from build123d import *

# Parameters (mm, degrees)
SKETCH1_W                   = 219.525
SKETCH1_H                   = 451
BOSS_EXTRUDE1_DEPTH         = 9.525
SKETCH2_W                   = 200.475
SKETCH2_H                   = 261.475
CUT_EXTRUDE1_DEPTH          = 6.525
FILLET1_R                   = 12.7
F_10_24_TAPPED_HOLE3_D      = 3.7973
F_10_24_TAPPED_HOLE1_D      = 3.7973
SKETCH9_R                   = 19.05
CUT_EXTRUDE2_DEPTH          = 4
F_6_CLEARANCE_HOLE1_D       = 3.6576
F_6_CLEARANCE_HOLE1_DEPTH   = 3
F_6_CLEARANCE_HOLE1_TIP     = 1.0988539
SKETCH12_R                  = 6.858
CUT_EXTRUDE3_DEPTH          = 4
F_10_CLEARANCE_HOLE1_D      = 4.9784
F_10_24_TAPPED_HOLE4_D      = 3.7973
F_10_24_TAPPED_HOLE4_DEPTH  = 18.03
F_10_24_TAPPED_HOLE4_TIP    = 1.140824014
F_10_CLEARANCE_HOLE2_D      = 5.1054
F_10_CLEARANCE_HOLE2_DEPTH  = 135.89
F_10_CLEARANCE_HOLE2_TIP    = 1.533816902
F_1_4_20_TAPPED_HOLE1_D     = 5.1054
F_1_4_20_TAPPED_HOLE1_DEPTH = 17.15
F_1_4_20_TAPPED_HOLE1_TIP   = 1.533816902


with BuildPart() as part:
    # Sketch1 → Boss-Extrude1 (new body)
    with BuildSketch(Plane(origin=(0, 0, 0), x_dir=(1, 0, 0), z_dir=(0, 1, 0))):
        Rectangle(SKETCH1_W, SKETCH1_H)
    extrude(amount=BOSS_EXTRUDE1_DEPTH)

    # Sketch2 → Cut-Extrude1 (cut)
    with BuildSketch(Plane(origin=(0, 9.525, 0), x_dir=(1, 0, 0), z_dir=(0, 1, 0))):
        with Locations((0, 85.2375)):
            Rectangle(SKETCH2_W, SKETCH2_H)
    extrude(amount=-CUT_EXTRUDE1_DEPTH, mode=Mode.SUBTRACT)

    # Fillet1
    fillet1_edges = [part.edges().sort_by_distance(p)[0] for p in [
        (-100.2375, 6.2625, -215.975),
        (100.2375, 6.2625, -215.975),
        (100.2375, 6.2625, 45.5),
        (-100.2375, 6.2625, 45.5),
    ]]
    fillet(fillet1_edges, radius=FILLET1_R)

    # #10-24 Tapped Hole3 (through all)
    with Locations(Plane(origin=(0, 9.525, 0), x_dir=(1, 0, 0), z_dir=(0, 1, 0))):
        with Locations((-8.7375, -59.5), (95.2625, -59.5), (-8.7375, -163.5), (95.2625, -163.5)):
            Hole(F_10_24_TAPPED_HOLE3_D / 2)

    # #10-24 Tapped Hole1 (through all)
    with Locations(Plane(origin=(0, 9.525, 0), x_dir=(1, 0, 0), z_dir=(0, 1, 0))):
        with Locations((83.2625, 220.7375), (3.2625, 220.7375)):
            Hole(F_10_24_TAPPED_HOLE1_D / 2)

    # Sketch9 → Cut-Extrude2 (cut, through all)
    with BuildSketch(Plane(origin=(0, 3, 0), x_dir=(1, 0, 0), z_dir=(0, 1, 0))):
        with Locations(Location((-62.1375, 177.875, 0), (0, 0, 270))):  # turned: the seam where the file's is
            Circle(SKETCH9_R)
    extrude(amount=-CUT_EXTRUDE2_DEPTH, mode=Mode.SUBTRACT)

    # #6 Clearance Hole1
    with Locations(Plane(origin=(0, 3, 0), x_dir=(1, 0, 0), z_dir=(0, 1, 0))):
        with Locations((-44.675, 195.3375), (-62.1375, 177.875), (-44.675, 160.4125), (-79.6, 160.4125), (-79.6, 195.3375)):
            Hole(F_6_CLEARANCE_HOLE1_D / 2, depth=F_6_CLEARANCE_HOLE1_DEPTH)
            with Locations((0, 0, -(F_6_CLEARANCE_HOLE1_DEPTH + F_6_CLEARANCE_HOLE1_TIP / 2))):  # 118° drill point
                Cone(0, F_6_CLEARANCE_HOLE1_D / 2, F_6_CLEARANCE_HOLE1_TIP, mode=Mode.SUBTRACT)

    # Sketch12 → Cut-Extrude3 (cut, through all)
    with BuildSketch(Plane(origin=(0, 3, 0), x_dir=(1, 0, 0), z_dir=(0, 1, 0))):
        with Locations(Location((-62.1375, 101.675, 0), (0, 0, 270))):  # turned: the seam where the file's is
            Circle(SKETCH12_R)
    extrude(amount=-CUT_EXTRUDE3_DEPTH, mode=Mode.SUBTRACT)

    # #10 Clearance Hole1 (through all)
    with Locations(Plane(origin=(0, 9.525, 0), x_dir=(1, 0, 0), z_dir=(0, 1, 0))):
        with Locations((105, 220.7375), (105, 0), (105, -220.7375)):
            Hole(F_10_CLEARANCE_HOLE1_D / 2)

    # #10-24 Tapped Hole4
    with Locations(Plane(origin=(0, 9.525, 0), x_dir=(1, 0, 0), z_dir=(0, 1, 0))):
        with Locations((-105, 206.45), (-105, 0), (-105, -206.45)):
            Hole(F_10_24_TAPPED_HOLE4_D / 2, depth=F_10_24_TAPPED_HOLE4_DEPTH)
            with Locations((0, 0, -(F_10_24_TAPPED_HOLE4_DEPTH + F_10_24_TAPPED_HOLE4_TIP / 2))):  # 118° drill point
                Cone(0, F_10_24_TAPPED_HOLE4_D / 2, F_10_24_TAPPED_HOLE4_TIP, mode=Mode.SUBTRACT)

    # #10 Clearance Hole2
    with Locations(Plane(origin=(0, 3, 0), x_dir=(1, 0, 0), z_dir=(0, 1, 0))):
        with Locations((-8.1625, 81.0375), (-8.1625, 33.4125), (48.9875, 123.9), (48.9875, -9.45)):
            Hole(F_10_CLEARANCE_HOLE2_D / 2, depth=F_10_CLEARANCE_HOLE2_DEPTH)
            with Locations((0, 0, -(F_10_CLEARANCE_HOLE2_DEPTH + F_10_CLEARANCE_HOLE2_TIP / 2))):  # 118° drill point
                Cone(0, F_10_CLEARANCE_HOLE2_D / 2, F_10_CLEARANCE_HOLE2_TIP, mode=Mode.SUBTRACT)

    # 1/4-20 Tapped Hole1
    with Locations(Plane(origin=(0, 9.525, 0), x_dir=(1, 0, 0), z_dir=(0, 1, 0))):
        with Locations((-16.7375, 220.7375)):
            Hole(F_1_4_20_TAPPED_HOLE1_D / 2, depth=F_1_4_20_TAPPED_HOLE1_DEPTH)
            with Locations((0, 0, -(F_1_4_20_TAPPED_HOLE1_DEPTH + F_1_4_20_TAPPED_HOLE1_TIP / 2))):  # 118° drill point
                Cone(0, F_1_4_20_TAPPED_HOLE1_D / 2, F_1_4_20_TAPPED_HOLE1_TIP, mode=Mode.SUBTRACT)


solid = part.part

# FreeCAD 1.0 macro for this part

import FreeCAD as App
import Part
import Sketcher

V = App.Vector
Q = App.Units.Quantity


def edges_at(feature, points):
    """Names of the edges that pass closest to the given points."""
    edges = feature.Shape.Edges
    near = lambda p: min(range(len(edges)), key=lambda i: edges[i].distToShape(Part.Vertex(*p))[0])
    return sorted({f"Edge{near(p) + 1}" for p in points})


def add_polygon(sketch, points):
    """Adds a closed chain of lines whose ends are joined by coincident constraints."""
    first, n = sketch.GeometryCount, len(points)
    for a, b in zip(points, points[1:] + points[:1]):
        sketch.addGeometry(Part.LineSegment(App.Vector(*a, 0), App.Vector(*b, 0)), False)
    for i in range(n):
        sketch.addConstraint(Sketcher.Constraint("Coincident", first + i, 2, first + (i + 1) % n, 1))

doc = App.newDocument("Part")
body = doc.addObject("PartDesign::Body", "Body")

# Sketch on XZ plane
sketch1 = body.newObject("Sketcher::SketchObject", "Sketch")
sketch1.AttachmentSupport = (doc.getObject("XZ_Plane"), [""])
sketch1.MapMode = "FlatFace"
add_polygon(sketch1, [(-110, -226), (-110, 226), (110, 226), (110, -226)])  # lines 0-3
sketch1.addConstraint([
    Sketcher.Constraint("Vertical", 0),
    Sketcher.Constraint("Horizontal", 1),
    Sketcher.Constraint("Vertical", 2),
    Sketcher.Constraint("Horizontal", 3),
    Sketcher.Constraint("Symmetric", 0, 2, 2, 2, -1, 1),
    Sketcher.Constraint("DistanceX", 1, 1, 1, 2, 219.525),
    Sketcher.Constraint("DistanceY", 0, 1, 0, 2, 451.0),
])
pad1 = body.newObject("PartDesign::Pad", "Pad")
pad1.Profile = sketch1
pad1.Length = Q("0.375 in")
pad1.Reversed = True

# Sketch on XZ plane
sketch2 = body.newObject("Sketcher::SketchObject", "Sketch001")
sketch2.AttachmentSupport = (doc.getObject("XZ_Plane"), [""])
sketch2.MapMode = "FlatFace"
sketch2.AttachmentOffset = App.Placement(V(0, 0, -0.375 * 25.4), App.Rotation())
add_polygon(sketch2, [(-100, -216), (-100, 46), (100, 46), (100, -216)])  # lines 0-3
sketch2.addConstraint([
    Sketcher.Constraint("Vertical", 0),
    Sketcher.Constraint("Horizontal", 1),
    Sketcher.Constraint("Vertical", 2),
    Sketcher.Constraint("Horizontal", 3),
    Sketcher.Constraint("DistanceX", 1, 1, 1, 2, 200.475),
    Sketcher.Constraint("DistanceY", 0, 1, 0, 2, 261.475),
    Sketcher.Constraint("DistanceX", 0, 2, -1, 1, 100.2375),
    Sketcher.Constraint("DistanceY", -1, 1, 0, 2, 45.5),
])
pocket1 = body.newObject("PartDesign::Pocket", "Pocket")
pocket1.Profile = sketch2
pocket1.Length = 6.525
pocket1.Reversed = True
doc.recompute()

fillet = body.newObject("PartDesign::Fillet", "Fillet")
fillet.Base = (pocket1, edges_at(pocket1, [
    (-100.237, 6.263, -215.975),
    (100.237, 6.263, -215.975),
    (100.237, 6.263, 45.5),
    (-100.237, 6.263, 45.5),
]))
fillet.Radius = Q("0.5 in")

# Sketch on XZ plane
sketch3 = body.newObject("Sketcher::SketchObject", "Sketch002")
sketch3.AttachmentSupport = (doc.getObject("XZ_Plane"), [""])
sketch3.MapMode = "FlatFace"
sketch3.AttachmentOffset = App.Placement(V(0, 0, -0.375 * 25.4), App.Rotation())
sketch3.addGeometry([
    Part.Circle(V(-8.7, 59.5, 0), V(0, 0, 1), 1.9),
    Part.Circle(V(95.3, 59.5, 0), V(0, 0, 1), 1.9),
    Part.Circle(V(-8.7, 163.5, 0), V(0, 0, 1), 1.9),
    Part.Circle(V(95.3, 163.5, 0), V(0, 0, 1), 1.9),
], False)
sketch3.addConstraint([
    Sketcher.Constraint("Equal", 0, 1),
    Sketcher.Constraint("Equal", 1, 2),
    Sketcher.Constraint("Equal", 2, 3),
    Sketcher.Constraint("Horizontal", 0, 3, 1, 3),
    Sketcher.Constraint("Horizontal", 2, 3, 3, 3),
    Sketcher.Constraint("Vertical", 0, 3, 2, 3),
    Sketcher.Constraint("Vertical", 1, 3, 3, 3),
    Sketcher.Constraint("Diameter", 0, Q("0.1495 in")),
    Sketcher.Constraint("DistanceX", 0, 3, -1, 1, 8.7375),
    Sketcher.Constraint("DistanceY", -1, 1, 0, 3, 59.5),
    Sketcher.Constraint("DistanceX", -1, 1, 1, 3, 95.2625),
    Sketcher.Constraint("DistanceY", -1, 1, 2, 3, 163.5),
])
doc.recompute()
hole = body.newObject("PartDesign::Hole", "Hole")
hole.Profile = sketch3
hole.ThreadType = "None"
hole.Diameter = Q("0.1495 in")
hole.DepthType = "ThroughAll"
hole.Reversed = True

# Sketch on XZ plane
sketch4 = body.newObject("Sketcher::SketchObject", "Sketch003")
sketch4.AttachmentSupport = (doc.getObject("XZ_Plane"), [""])
sketch4.MapMode = "FlatFace"
sketch4.AttachmentOffset = App.Placement(V(0, 0, -0.375 * 25.4), App.Rotation())
sketch4.addGeometry([
    Part.Circle(V(83.3, -220.7, 0), V(0, 0, 1), 1.9),
    Part.Circle(V(3.3, -220.7, 0), V(0, 0, 1), 1.9),
], False)
sketch4.addConstraint([
    Sketcher.Constraint("Equal", 0, 1),
    Sketcher.Constraint("Horizontal", 0, 3, 1, 3),
    Sketcher.Constraint("Diameter", 0, Q("0.1495 in")),
    Sketcher.Constraint("DistanceX", -1, 1, 0, 3, 83.2625),
    Sketcher.Constraint("DistanceY", 0, 3, -1, 1, 220.7375),
    Sketcher.Constraint("DistanceX", -1, 1, 1, 3, 3.2625),
])
doc.recompute()
hole2 = body.newObject("PartDesign::Hole", "Hole001")
hole2.Profile = sketch4
hole2.ThreadType = "None"
hole2.Diameter = Q("0.1495 in")
hole2.DepthType = "ThroughAll"
hole2.Reversed = True

# Sketch on XZ plane
sketch5 = body.newObject("Sketcher::SketchObject", "Sketch004")
sketch5.AttachmentSupport = (doc.getObject("XZ_Plane"), [""])
sketch5.MapMode = "FlatFace"
sketch5.AttachmentOffset = App.Placement(V(0, 0, -3), App.Rotation())
sketch5.addGeometry(Part.Circle(V(-62, -178, 0), V(0, 0, 1), 19), False)
sketch5.addConstraint([
    Sketcher.Constraint("Diameter", 0, Q("1.5 in")),
    Sketcher.Constraint("DistanceX", 0, 3, -1, 1, 62.1375),
    Sketcher.Constraint("DistanceY", 0, 3, -1, 1, 177.875),
])
pocket2 = body.newObject("PartDesign::Pocket", "Pocket001")
pocket2.Profile = sketch5
pocket2.Type = "ThroughAll"
pocket2.Reversed = True

# Sketch on XZ plane
sketch6 = body.newObject("Sketcher::SketchObject", "Sketch005")
sketch6.AttachmentSupport = (doc.getObject("XZ_Plane"), [""])
sketch6.MapMode = "FlatFace"
sketch6.AttachmentOffset = App.Placement(V(0, 0, -3), App.Rotation())
sketch6.addGeometry([
    Part.Circle(V(-44.7, -195.3, 0), V(0, 0, 1), 1.8),  # 0
    Part.Circle(V(-62.1, -177.9, 0), V(0, 0, 1), 1.8),  # 1
    Part.Circle(V(-44.7, -160.4, 0), V(0, 0, 1), 1.8),  # 2
    Part.Circle(V(-79.6, -160.4, 0), V(0, 0, 1), 1.8),  # 3
    Part.Circle(V(-79.6, -195.3, 0), V(0, 0, 1), 1.8),  # 4
], False)
sketch6.addConstraint([
    Sketcher.Constraint("Equal", 0, 1),
    Sketcher.Constraint("Equal", 1, 2),
    Sketcher.Constraint("Equal", 2, 3),
    Sketcher.Constraint("Equal", 3, 4),
    Sketcher.Constraint("Horizontal", 2, 3, 3, 3),
    Sketcher.Constraint("Horizontal", 0, 3, 4, 3),
    Sketcher.Constraint("Vertical", 0, 3, 2, 3),
    Sketcher.Constraint("Vertical", 3, 3, 4, 3),
    Sketcher.Constraint("Diameter", 0, Q("0.144 in")),
    Sketcher.Constraint("DistanceX", 1, 3, 0, 3, Q("0.6875 in")),
    Sketcher.Constraint("DistanceY", 0, 3, 1, 3, Q("0.6875 in")),
    Sketcher.Constraint("DistanceY", 1, 3, 2, 3, Q("0.6875 in")),
    Sketcher.Constraint("DistanceX", 3, 3, 1, 3, Q("0.6875 in")),
    Sketcher.Constraint("DistanceX", 0, 3, -1, 1, 44.675),
    Sketcher.Constraint("DistanceY", 0, 3, -1, 1, 195.3375),
])
doc.recompute()
hole3 = body.newObject("PartDesign::Hole", "Hole002")
hole3.Profile = sketch6
hole3.ThreadType = "None"
hole3.Diameter = Q("0.144 in")
hole3.DepthType = "Dimension"
hole3.Depth = 3
hole3.DrillPoint = "Angled"
hole3.DrillPointAngle = 118
hole3.Reversed = True

# Sketch on XZ plane
sketch7 = body.newObject("Sketcher::SketchObject", "Sketch006")
sketch7.AttachmentSupport = (doc.getObject("XZ_Plane"), [""])
sketch7.MapMode = "FlatFace"
sketch7.AttachmentOffset = App.Placement(V(0, 0, -3), App.Rotation())
sketch7.addGeometry(Part.Circle(V(-62, -102, 0), V(0, 0, 1), 7), False)
sketch7.addConstraint([
    Sketcher.Constraint("Diameter", 0, Q("0.54 in")),
    Sketcher.Constraint("DistanceX", 0, 3, -1, 1, 62.1375),
    Sketcher.Constraint("DistanceY", 0, 3, -1, 1, 101.675),
])
pocket3 = body.newObject("PartDesign::Pocket", "Pocket002")
pocket3.Profile = sketch7
pocket3.Type = "ThroughAll"
pocket3.Reversed = True

# Sketch on XZ plane
sketch8 = body.newObject("Sketcher::SketchObject", "Sketch007")
sketch8.AttachmentSupport = (doc.getObject("XZ_Plane"), [""])
sketch8.MapMode = "FlatFace"
sketch8.AttachmentOffset = App.Placement(V(0, 0, -0.375 * 25.4), App.Rotation())
sketch8.addGeometry([
    Part.Circle(V(105, -220.7, 0), V(0, 0, 1), 2.5),
    Part.Circle(V(105, 0, 0), V(0, 0, 1), 2.5),
    Part.Circle(V(105, 220.7, 0), V(0, 0, 1), 2.5),
], False)
sketch8.addConstraint([
    Sketcher.Constraint("Equal", 0, 1),
    Sketcher.Constraint("Equal", 1, 2),
    Sketcher.Constraint("Symmetric", 0, 3, 2, 3, -1),
    Sketcher.Constraint("PointOnObject", 1, 3, -1),
    Sketcher.Constraint("Vertical", 0, 3, 1, 3),
    Sketcher.Constraint("Diameter", 0, Q("0.196 in")),
    Sketcher.Constraint("DistanceX", -1, 1, 0, 3, 105.0),
    Sketcher.Constraint("DistanceY", 0, 3, -1, 1, 220.7375),
])
doc.recompute()
hole4 = body.newObject("PartDesign::Hole", "Hole003")
hole4.Profile = sketch8
hole4.ThreadType = "None"
hole4.Diameter = Q("0.196 in")
hole4.DepthType = "ThroughAll"
hole4.Reversed = True

# Sketch on XZ plane
sketch9 = body.newObject("Sketcher::SketchObject", "Sketch008")
sketch9.AttachmentSupport = (doc.getObject("XZ_Plane"), [""])
sketch9.MapMode = "FlatFace"
sketch9.AttachmentOffset = App.Placement(V(0, 0, -0.375 * 25.4), App.Rotation())
sketch9.addGeometry([
    Part.Circle(V(-105, -206.4, 0), V(0, 0, 1), 1.9),
    Part.Circle(V(-105, 0, 0), V(0, 0, 1), 1.9),
    Part.Circle(V(-105, 206.4, 0), V(0, 0, 1), 1.9),
], False)
sketch9.addConstraint([
    Sketcher.Constraint("Equal", 0, 1),
    Sketcher.Constraint("Equal", 1, 2),
    Sketcher.Constraint("Symmetric", 0, 3, 2, 3, -1),
    Sketcher.Constraint("PointOnObject", 1, 3, -1),
    Sketcher.Constraint("Vertical", 0, 3, 1, 3),
    Sketcher.Constraint("Diameter", 0, Q("0.1495 in")),
    Sketcher.Constraint("DistanceX", 0, 3, -1, 1, 105.0),
    Sketcher.Constraint("DistanceY", 0, 3, -1, 1, 206.45),
])
doc.recompute()
hole5 = body.newObject("PartDesign::Hole", "Hole004")
hole5.Profile = sketch9
hole5.ThreadType = "None"
hole5.Diameter = Q("0.1495 in")
hole5.DepthType = "Dimension"
hole5.Depth = 18.03
hole5.DrillPoint = "Angled"
hole5.DrillPointAngle = 118
hole5.Reversed = True

# Sketch on XZ plane
sketch10 = body.newObject("Sketcher::SketchObject", "Sketch009")
sketch10.AttachmentSupport = (doc.getObject("XZ_Plane"), [""])
sketch10.MapMode = "FlatFace"
sketch10.AttachmentOffset = App.Placement(V(0, 0, -3), App.Rotation())
sketch10.addGeometry([
    Part.Circle(V(-8.2, -81, 0), V(0, 0, 1), 2.6),
    Part.Circle(V(-8.2, -33.4, 0), V(0, 0, 1), 2.6),
    Part.Circle(V(49, -123.9, 0), V(0, 0, 1), 2.6),
    Part.Circle(V(49, 9.4, 0), V(0, 0, 1), 2.6),
], False)
sketch10.addConstraint([
    Sketcher.Constraint("Equal", 0, 1),
    Sketcher.Constraint("Equal", 1, 2),
    Sketcher.Constraint("Equal", 2, 3),
    Sketcher.Constraint("Vertical", 0, 3, 1, 3),
    Sketcher.Constraint("Vertical", 2, 3, 3, 3),
    Sketcher.Constraint("Diameter", 0, Q("0.201 in")),
    Sketcher.Constraint("DistanceX", 0, 3, 2, 3, Q("2.25 in")),
    Sketcher.Constraint("DistanceY", 2, 3, 3, 3, Q("5.25 in")),
    Sketcher.Constraint("DistanceY", 0, 3, 1, 3, Q("1.875 in")),
    Sketcher.Constraint("DistanceY", 2, 3, 0, 3, Q("1.6875 in")),
    Sketcher.Constraint("DistanceX", 0, 3, -1, 1, 8.1625),
    Sketcher.Constraint("DistanceY", 0, 3, -1, 1, 81.0375),
])
doc.recompute()
hole6 = body.newObject("PartDesign::Hole", "Hole005")
hole6.Profile = sketch10
hole6.ThreadType = "None"
hole6.Diameter = Q("0.201 in")
hole6.DepthType = "Dimension"
hole6.Depth = Q("5.35 in")
hole6.DrillPoint = "Angled"
hole6.DrillPointAngle = 118
hole6.Reversed = True

# Sketch on XZ plane
sketch11 = body.newObject("Sketcher::SketchObject", "Sketch010")
sketch11.AttachmentSupport = (doc.getObject("XZ_Plane"), [""])
sketch11.MapMode = "FlatFace"
sketch11.AttachmentOffset = App.Placement(V(0, 0, -0.375 * 25.4), App.Rotation())
sketch11.addGeometry(Part.Circle(V(-16.7, -220.7, 0), V(0, 0, 1), 2.6), False)
sketch11.addConstraint([
    Sketcher.Constraint("Diameter", 0, Q("0.201 in")),
    Sketcher.Constraint("DistanceX", 0, 3, -1, 1, 16.7375),
    Sketcher.Constraint("DistanceY", 0, 3, -1, 1, 220.7375),
])
doc.recompute()
hole7 = body.newObject("PartDesign::Hole", "Hole006")
hole7.Profile = sketch11
hole7.ThreadType = "None"
hole7.Diameter = Q("0.201 in")
hole7.DepthType = "Dimension"
hole7.Depth = 17.15
hole7.DrillPoint = "Angled"
hole7.DrillPointAngle = 118
hole7.Reversed = True

doc.recompute()
